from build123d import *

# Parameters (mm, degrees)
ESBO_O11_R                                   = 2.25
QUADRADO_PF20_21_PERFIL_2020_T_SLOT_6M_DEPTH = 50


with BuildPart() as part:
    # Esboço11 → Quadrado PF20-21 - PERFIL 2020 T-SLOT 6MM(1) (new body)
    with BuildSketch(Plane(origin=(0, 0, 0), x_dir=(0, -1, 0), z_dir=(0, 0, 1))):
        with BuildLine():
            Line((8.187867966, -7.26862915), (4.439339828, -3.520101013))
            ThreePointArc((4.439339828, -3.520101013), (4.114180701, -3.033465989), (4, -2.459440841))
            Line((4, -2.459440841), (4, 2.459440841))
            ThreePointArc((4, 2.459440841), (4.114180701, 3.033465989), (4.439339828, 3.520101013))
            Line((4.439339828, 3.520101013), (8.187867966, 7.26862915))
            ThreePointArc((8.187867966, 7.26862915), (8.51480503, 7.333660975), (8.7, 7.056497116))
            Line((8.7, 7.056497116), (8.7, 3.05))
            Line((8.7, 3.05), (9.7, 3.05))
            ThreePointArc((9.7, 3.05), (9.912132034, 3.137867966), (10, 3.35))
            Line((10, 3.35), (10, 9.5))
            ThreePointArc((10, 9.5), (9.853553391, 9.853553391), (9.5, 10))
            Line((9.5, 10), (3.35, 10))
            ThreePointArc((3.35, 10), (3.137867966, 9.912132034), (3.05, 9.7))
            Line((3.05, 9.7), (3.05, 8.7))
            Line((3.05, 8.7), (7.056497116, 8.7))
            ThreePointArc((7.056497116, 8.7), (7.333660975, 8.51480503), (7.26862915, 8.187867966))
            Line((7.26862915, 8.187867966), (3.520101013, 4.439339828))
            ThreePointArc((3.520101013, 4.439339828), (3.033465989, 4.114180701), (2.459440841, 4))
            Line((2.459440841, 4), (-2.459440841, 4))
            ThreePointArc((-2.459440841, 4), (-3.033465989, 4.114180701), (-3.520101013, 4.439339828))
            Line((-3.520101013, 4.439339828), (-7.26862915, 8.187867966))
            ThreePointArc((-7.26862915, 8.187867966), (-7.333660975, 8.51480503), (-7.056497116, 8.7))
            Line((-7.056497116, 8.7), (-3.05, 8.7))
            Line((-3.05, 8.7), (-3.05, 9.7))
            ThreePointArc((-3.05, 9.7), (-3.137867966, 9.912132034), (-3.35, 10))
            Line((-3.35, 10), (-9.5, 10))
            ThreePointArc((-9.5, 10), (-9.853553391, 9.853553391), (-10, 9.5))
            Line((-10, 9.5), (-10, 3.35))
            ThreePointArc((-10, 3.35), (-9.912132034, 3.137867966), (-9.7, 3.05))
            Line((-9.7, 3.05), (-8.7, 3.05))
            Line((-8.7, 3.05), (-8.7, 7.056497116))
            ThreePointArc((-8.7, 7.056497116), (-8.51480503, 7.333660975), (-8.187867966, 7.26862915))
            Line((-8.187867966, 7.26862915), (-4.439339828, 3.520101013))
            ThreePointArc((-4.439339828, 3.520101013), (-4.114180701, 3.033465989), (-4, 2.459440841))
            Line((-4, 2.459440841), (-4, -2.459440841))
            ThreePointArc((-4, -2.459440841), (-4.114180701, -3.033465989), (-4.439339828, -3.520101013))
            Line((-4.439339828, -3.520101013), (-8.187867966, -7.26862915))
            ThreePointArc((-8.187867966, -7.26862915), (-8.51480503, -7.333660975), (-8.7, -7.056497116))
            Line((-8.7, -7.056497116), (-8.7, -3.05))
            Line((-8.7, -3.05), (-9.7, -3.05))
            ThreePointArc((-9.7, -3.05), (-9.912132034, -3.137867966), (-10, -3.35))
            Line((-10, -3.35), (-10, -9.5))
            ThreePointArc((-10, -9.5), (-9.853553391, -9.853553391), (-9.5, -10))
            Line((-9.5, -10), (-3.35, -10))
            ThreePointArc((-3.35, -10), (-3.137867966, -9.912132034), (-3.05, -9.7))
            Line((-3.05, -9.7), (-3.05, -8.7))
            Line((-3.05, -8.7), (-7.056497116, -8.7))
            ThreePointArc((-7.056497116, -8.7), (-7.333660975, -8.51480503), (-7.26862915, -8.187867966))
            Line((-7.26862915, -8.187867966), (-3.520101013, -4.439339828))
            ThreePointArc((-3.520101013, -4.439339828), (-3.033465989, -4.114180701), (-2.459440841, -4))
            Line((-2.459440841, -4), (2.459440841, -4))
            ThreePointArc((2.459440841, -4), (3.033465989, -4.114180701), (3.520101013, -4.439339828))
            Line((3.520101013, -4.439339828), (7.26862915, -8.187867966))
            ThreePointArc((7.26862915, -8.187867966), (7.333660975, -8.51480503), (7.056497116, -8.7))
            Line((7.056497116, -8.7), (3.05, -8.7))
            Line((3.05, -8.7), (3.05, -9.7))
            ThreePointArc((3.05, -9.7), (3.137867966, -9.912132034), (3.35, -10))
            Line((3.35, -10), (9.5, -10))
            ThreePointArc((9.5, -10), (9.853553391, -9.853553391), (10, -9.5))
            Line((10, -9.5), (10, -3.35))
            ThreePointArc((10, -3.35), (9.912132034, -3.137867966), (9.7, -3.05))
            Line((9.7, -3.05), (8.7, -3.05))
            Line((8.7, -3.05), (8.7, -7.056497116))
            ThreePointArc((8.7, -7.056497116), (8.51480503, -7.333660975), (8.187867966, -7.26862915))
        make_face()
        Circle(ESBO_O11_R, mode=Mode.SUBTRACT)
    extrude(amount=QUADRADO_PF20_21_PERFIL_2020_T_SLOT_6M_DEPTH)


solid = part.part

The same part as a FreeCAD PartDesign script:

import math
import FreeCAD as App
import Part
import Sketcher

V = App.Vector

doc = App.newDocument("Part")
body = doc.addObject("PartDesign::Body", "Body")

# Sketch on XY plane
sketch1 = body.newObject("Sketcher::SketchObject", "Sketch")
sketch1.AttachmentSupport = (doc.getObject("XY_Plane"), [""])
sketch1.MapMode = "FlatFace"
sketch1.addGeometry(Part.LineSegment(V(-7.27, -8.19, 0), V(-3.52, -4.44, 0)), False)
sketch1.addGeometry(Part.ArcOfCircle(Part.Circle(V(-2.46, -5.5, 0), V(0, 0, 1), 1.5), math.radians(90), math.radians(135)), False)
sketch1.addGeometry(Part.LineSegment(V(-2.46, -4, 0), V(2.46, -4, 0)), False)
sketch1.addGeometry(Part.ArcOfCircle(Part.Circle(V(2.46, -5.5, 0), V(0, 0, 1), 1.5), math.radians(45), math.radians(90)), False)
sketch1.addGeometry(Part.LineSegment(V(3.52, -4.44, 0), V(7.27, -8.19, 0)), False)
sketch1.addGeometry(Part.ArcOfCircle(Part.Circle(V(7.06, -8.4, 0), V(0, 0, 1), 0.3), math.radians(-90), math.radians(45)), False)
sketch1.addGeometry(Part.LineSegment(V(7.06, -8.7, 0), V(3.05, -8.7, 0)), False)
sketch1.addGeometry(Part.LineSegment(V(3.05, -8.7, 0), V(3.05, -9.7, 0)), False)
sketch1.addGeometry(Part.ArcOfCircle(Part.Circle(V(3.35, -9.7, 0), V(0, 0, 1), 0.3), math.radians(-180), math.radians(-90)), False)
sketch1.addGeometry(Part.LineSegment(V(3.35, -10, 0), V(9.5, -10, 0)), False)
sketch1.addGeometry(Part.ArcOfCircle(Part.Circle(V(9.5, -9.5, 0), V(0, 0, 1), 0.5), math.radians(-90), math.radians(0)), False)
sketch1.addGeometry(Part.LineSegment(V(10, -9.5, 0), V(10, -3.35, 0)), False)
sketch1.addGeometry(Part.ArcOfCircle(Part.Circle(V(9.7, -3.35, 0), V(0, 0, 1), 0.3), math.radians(0), math.radians(90)), False)
sketch1.addGeometry(Part.LineSegment(V(9.7, -3.05, 0), V(8.7, -3.05, 0)), False)
sketch1.addGeometry(Part.LineSegment(V(8.7, -3.05, 0), V(8.7, -7.06, 0)), False)
sketch1.addGeometry(Part.ArcOfCircle(Part.Circle(V(8.4, -7.06, 0), V(0, 0, 1), 0.3), math.radians(-135), math.radians(0)), False)
sketch1.addGeometry(Part.LineSegment(V(8.19, -7.27, 0), V(4.44, -3.52, 0)), False)
sketch1.addGeometry(Part.ArcOfCircle(Part.Circle(V(5.5, -2.46, 0), V(0, 0, 1), 1.5), math.radians(180), math.radians(225)), False)
sketch1.addGeometry(Part.LineSegment(V(4, -2.46, 0), V(4, 2.46, 0)), False)
sketch1.addGeometry(Part.ArcOfCircle(Part.Circle(V(5.5, 2.46, 0), V(0, 0, 1), 1.5), math.radians(135), math.radians(180)), False)
sketch1.addGeometry(Part.LineSegment(V(4.44, 3.52, 0), V(8.19, 7.27, 0)), False)
sketch1.addGeometry(Part.ArcOfCircle(Part.Circle(V(8.4, 7.06, 0), V(0, 0, 1), 0.3), math.radians(0), math.radians(135)), False)
sketch1.addGeometry(Part.LineSegment(V(8.7, 7.06, 0), V(8.7, 3.05, 0)), False)
sketch1.addGeometry(Part.LineSegment(V(8.7, 3.05, 0), V(9.7, 3.05, 0)), False)
sketch1.addGeometry(Part.ArcOfCircle(Part.Circle(V(9.7, 3.35, 0), V(0, 0, 1), 0.3), math.radians(-90), math.radians(0)), False)
sketch1.addGeometry(Part.LineSegment(V(10, 3.35, 0), V(10, 9.5, 0)), False)
sketch1.addGeometry(Part.ArcOfCircle(Part.Circle(V(9.5, 9.5, 0), V(0, 0, 1), 0.5), math.radians(0), math.radians(90)), False)
sketch1.addGeometry(Part.LineSegment(V(9.5, 10, 0), V(3.35, 10, 0)), False)
sketch1.addGeometry(Part.ArcOfCircle(Part.Circle(V(3.35, 9.7, 0), V(0, 0, 1), 0.3), math.radians(90), math.radians(180)), False)
sketch1.addGeometry(Part.LineSegment(V(3.05, 9.7, 0), V(3.05, 8.7, 0)), False)
sketch1.addGeometry(Part.LineSegment(V(3.05, 8.7, 0), V(7.06, 8.7, 0)), False)
sketch1.addGeometry(Part.ArcOfCircle(Part.Circle(V(7.06, 8.4, 0), V(0, 0, 1), 0.3), math.radians(-45), math.radians(90)), False)
sketch1.addGeometry(Part.LineSegment(V(7.27, 8.19, 0), V(3.52, 4.44, 0)), False)
sketch1.addGeometry(Part.ArcOfCircle(Part.Circle(V(2.46, 5.5, 0), V(0, 0, 1), 1.5), math.radians(-90), math.radians(-45)), False)
sketch1.addGeometry(Part.LineSegment(V(2.46, 4, 0), V(-2.46, 4, 0)), False)
sketch1.addGeometry(Part.ArcOfCircle(Part.Circle(V(-2.46, 5.5, 0), V(0, 0, 1), 1.5), math.radians(-135), math.radians(-90)), False)
sketch1.addGeometry(Part.LineSegment(V(-3.52, 4.44, 0), V(-7.27, 8.19, 0)), False)
sketch1.addGeometry(Part.ArcOfCircle(Part.Circle(V(-7.06, 8.4, 0), V(0, 0, 1), 0.3), math.radians(90), math.radians(225)), False)
sketch1.addGeometry(Part.LineSegment(V(-7.06, 8.7, 0), V(-3.05, 8.7, 0)), False)
sketch1.addGeometry(Part.LineSegment(V(-3.05, 8.7, 0), V(-3.05, 9.7, 0)), False)
sketch1.addGeometry(Part.ArcOfCircle(Part.Circle(V(-3.35, 9.7, 0), V(0, 0, 1), 0.3), math.radians(0), math.radians(90)), False)
sketch1.addGeometry(Part.LineSegment(V(-3.35, 10, 0), V(-9.5, 10, 0)), False)
sketch1.addGeometry(Part.ArcOfCircle(Part.Circle(V(-9.5, 9.5, 0), V(0, 0, 1), 0.5), math.radians(90), math.radians(180)), False)
sketch1.addGeometry(Part.LineSegment(V(-10, 9.5, 0), V(-10, 3.35, 0)), False)
sketch1.addGeometry(Part.ArcOfCircle(Part.Circle(V(-9.7, 3.35, 0), V(0, 0, 1), 0.3), math.radians(-180), math.radians(-90)), False)
sketch1.addGeometry(Part.LineSegment(V(-9.7, 3.05, 0), V(-8.7, 3.05, 0)), False)
sketch1.addGeometry(Part.LineSegment(V(-8.7, 3.05, 0), V(-8.7, 7.06, 0)), False)
sketch1.addGeometry(Part.ArcOfCircle(Part.Circle(V(-8.4, 7.06, 0), V(0, 0, 1), 0.3), math.radians(45), math.radians(180)), False)
sketch1.addGeometry(Part.LineSegment(V(-8.19, 7.27, 0), V(-4.44, 3.52, 0)), False)
sketch1.addGeometry(Part.ArcOfCircle(Part.Circle(V(-5.5, 2.46, 0), V(0, 0, 1), 1.5), math.radians(0), math.radians(45)), False)
sketch1.addGeometry(Part.LineSegment(V(-4, 2.46, 0), V(-4, -2.46, 0)), False)
sketch1.addGeometry(Part.ArcOfCircle(Part.Circle(V(-5.5, -2.46, 0), V(0, 0, 1), 1.5), math.radians(-45), math.radians(0)), False)
sketch1.addGeometry(Part.LineSegment(V(-4.44, -3.52, 0), V(-8.19, -7.27, 0)), False)
sketch1.addGeometry(Part.ArcOfCircle(Part.Circle(V(-8.4, -7.06, 0), V(0, 0, 1), 0.3), math.radians(-180), math.radians(-45)), False)
sketch1.addGeometry(Part.LineSegment(V(-8.7, -7.06, 0), V(-8.7, -3.05, 0)), False)
sketch1.addGeometry(Part.LineSegment(V(-8.7, -3.05, 0), V(-9.7, -3.05, 0)), False)
sketch1.addGeometry(Part.ArcOfCircle(Part.Circle(V(-9.7, -3.35, 0), V(0, 0, 1), 0.3), math.radians(90), math.radians(180)), False)
sketch1.addGeometry(Part.LineSegment(V(-10, -3.35, 0), V(-10, -9.5, 0)), False)
sketch1.addGeometry(Part.ArcOfCircle(Part.Circle(V(-9.5, -9.5, 0), V(0, 0, 1), 0.5), math.radians(180), math.radians(270)), False)
sketch1.addGeometry(Part.LineSegment(V(-9.5, -10, 0), V(-3.35, -10, 0)), False)
sketch1.addGeometry(Part.ArcOfCircle(Part.Circle(V(-3.35, -9.7, 0), V(0, 0, 1), 0.3), math.radians(-90), math.radians(0)), False)
sketch1.addGeometry(Part.LineSegment(V(-3.05, -9.7, 0), V(-3.05, -8.7, 0)), False)
sketch1.addGeometry(Part.LineSegment(V(-3.05, -8.7, 0), V(-7.06, -8.7, 0)), False)
sketch1.addGeometry(Part.ArcOfCircle(Part.Circle(V(-7.06, -8.4, 0), V(0, 0, 1), 0.3), math.radians(135), math.radians(270)), False)
sketch1.addGeometry(Part.Circle(V(0, 0, 0), V(0, 0, 1), 2.25), False)
sketch1.addConstraint(Sketcher.Constraint("Tangent", 0, 2, 1, 2))
sketch1.addConstraint(Sketcher.Constraint("Tangent", 1, 1, 2, 1))
sketch1.addConstraint(Sketcher.Constraint("Tangent", 2, 2, 3, 2))
sketch1.addConstraint(Sketcher.Constraint("Tangent", 3, 1, 4, 1))
sketch1.addConstraint(Sketcher.Constraint("Tangent", 4, 2, 5, 2))
sketch1.addConstraint(Sketcher.Constraint("Tangent", 5, 1, 6, 1))
sketch1.addConstraint(Sketcher.Constraint("Coincident", 6, 2, 7, 1))
sketch1.addConstraint(Sketcher.Constraint("Tangent", 7, 2, 8, 1))
sketch1.addConstraint(Sketcher.Constraint("Tangent", 8, 2, 9, 1))
sketch1.addConstraint(Sketcher.Constraint("Tangent", 9, 2, 10, 1))
sketch1.addConstraint(Sketcher.Constraint("Tangent", 10, 2, 11, 1))
sketch1.addConstraint(Sketcher.Constraint("Tangent", 11, 2, 12, 1))
sketch1.addConstraint(Sketcher.Constraint("Tangent", 12, 2, 13, 1))
sketch1.addConstraint(Sketcher.Constraint("Coincident", 13, 2, 14, 1))
sketch1.addConstraint(Sketcher.Constraint("Tangent", 14, 2, 15, 2))
sketch1.addConstraint(Sketcher.Constraint("Tangent", 15, 1, 16, 1))
sketch1.addConstraint(Sketcher.Constraint("Tangent", 16, 2, 17, 2))
sketch1.addConstraint(Sketcher.Constraint("Tangent", 17, 1, 18, 1))
sketch1.addConstraint(Sketcher.Constraint("Tangent", 18, 2, 19, 2))
sketch1.addConstraint(Sketcher.Constraint("Tangent", 19, 1, 20, 1))
sketch1.addConstraint(Sketcher.Constraint("Tangent", 20, 2, 21, 2))
sketch1.addConstraint(Sketcher.Constraint("Tangent", 21, 1, 22, 1))
sketch1.addConstraint(Sketcher.Constraint("Coincident", 22, 2, 23, 1))
sketch1.addConstraint(Sketcher.Constraint("Tangent", 23, 2, 24, 1))
sketch1.addConstraint(Sketcher.Constraint("Tangent", 24, 2, 25, 1))
sketch1.addConstraint(Sketcher.Constraint("Tangent", 25, 2, 26, 1))
sketch1.addConstraint(Sketcher.Constraint("Tangent", 26, 2, 27, 1))
sketch1.addConstraint(Sketcher.Constraint("Tangent", 27, 2, 28, 1))
sketch1.addConstraint(Sketcher.Constraint("Tangent", 28, 2, 29, 1))
sketch1.addConstraint(Sketcher.Constraint("Coincident", 29, 2, 30, 1))
sketch1.addConstraint(Sketcher.Constraint("Tangent", 30, 2, 31, 2))
sketch1.addConstraint(Sketcher.Constraint("Tangent", 31, 1, 32, 1))
sketch1.addConstraint(Sketcher.Constraint("Tangent", 32, 2, 33, 2))
sketch1.addConstraint(Sketcher.Constraint("Tangent", 33, 1, 34, 1))
sketch1.addConstraint(Sketcher.Constraint("Tangent", 34, 2, 35, 2))
sketch1.addConstraint(Sketcher.Constraint("Tangent", 35, 1, 36, 1))
sketch1.addConstraint(Sketcher.Constraint("Tangent", 36, 2, 37, 2))
sketch1.addConstraint(Sketcher.Constraint("Tangent", 37, 1, 38, 1))
sketch1.addConstraint(Sketcher.Constraint("Coincident", 38, 2, 39, 1))
sketch1.addConstraint(Sketcher.Constraint("Tangent", 39, 2, 40, 1))
sketch1.addConstraint(Sketcher.Constraint("Tangent", 40, 2, 41, 1))
sketch1.addConstraint(Sketcher.Constraint("Tangent", 41, 2, 42, 1))
sketch1.addConstraint(Sketcher.Constraint("Tangent", 42, 2, 43, 1))
sketch1.addConstraint(Sketcher.Constraint("Tangent", 43, 2, 44, 1))
sketch1.addConstraint(Sketcher.Constraint("Tangent", 44, 2, 45, 1))
sketch1.addConstraint(Sketcher.Constraint("Coincident", 45, 2, 46, 1))
sketch1.addConstraint(Sketcher.Constraint("Tangent", 46, 2, 47, 2))
sketch1.addConstraint(Sketcher.Constraint("Tangent", 47, 1, 48, 1))
sketch1.addConstraint(Sketcher.Constraint("Tangent", 48, 2, 49, 2))
sketch1.addConstraint(Sketcher.Constraint("Tangent", 49, 1, 50, 1))
sketch1.addConstraint(Sketcher.Constraint("Tangent", 50, 2, 51, 2))
sketch1.addConstraint(Sketcher.Constraint("Tangent", 51, 1, 52, 1))
sketch1.addConstraint(Sketcher.Constraint("Tangent", 52, 2, 53, 2))
sketch1.addConstraint(Sketcher.Constraint("Tangent", 53, 1, 54, 1))
sketch1.addConstraint(Sketcher.Constraint("Coincident", 54, 2, 55, 1))
sketch1.addConstraint(Sketcher.Constraint("Tangent", 55, 2, 56, 1))
sketch1.addConstraint(Sketcher.Constraint("Tangent", 56, 2, 57, 1))
sketch1.addConstraint(Sketcher.Constraint("Tangent", 57, 2, 58, 1))
sketch1.addConstraint(Sketcher.Constraint("Tangent", 58, 2, 59, 1))
sketch1.addConstraint(Sketcher.Constraint("Tangent", 59, 2, 60, 1))
sketch1.addConstraint(Sketcher.Constraint("Tangent", 60, 2, 61, 1))
sketch1.addConstraint(Sketcher.Constraint("Coincident", 61, 2, 62, 1))
sketch1.addConstraint(Sketcher.Constraint("Tangent", 62, 2, 63, 2))
sketch1.addConstraint(Sketcher.Constraint("Tangent", 63, 1, 0, 1))
sketch1.addConstraint(Sketcher.Constraint("Horizontal", 2))
sketch1.addConstraint(Sketcher.Constraint("Horizontal", 6))
sketch1.addConstraint(Sketcher.Constraint("Vertical", 7))
sketch1.addConstraint(Sketcher.Constraint("Horizontal", 9))
sketch1.addConstraint(Sketcher.Constraint("Vertical", 11))
sketch1.addConstraint(Sketcher.Constraint("Horizontal", 13))
sketch1.addConstraint(Sketcher.Constraint("Vertical", 14))
sketch1.addConstraint(Sketcher.Constraint("Vertical", 18))
sketch1.addConstraint(Sketcher.Constraint("Vertical", 22))
sketch1.addConstraint(Sketcher.Constraint("Horizontal", 23))
sketch1.addConstraint(Sketcher.Constraint("Vertical", 25))
sketch1.addConstraint(Sketcher.Constraint("Horizontal", 27))
sketch1.addConstraint(Sketcher.Constraint("Vertical", 29))
sketch1.addConstraint(Sketcher.Constraint("Horizontal", 30))
sketch1.addConstraint(Sketcher.Constraint("Horizontal", 34))
sketch1.addConstraint(Sketcher.Constraint("Horizontal", 38))
sketch1.addConstraint(Sketcher.Constraint("Vertical", 39))
sketch1.addConstraint(Sketcher.Constraint("Horizontal", 41))
sketch1.addConstraint(Sketcher.Constraint("Vertical", 43))
sketch1.addConstraint(Sketcher.Constraint("Horizontal", 45))
sketch1.addConstraint(Sketcher.Constraint("Vertical", 46))
sketch1.addConstraint(Sketcher.Constraint("Vertical", 50))
sketch1.addConstraint(Sketcher.Constraint("Vertical", 54))
sketch1.addConstraint(Sketcher.Constraint("Horizontal", 55))
sketch1.addConstraint(Sketcher.Constraint("Vertical", 57))
sketch1.addConstraint(Sketcher.Constraint("Horizontal", 59))
sketch1.addConstraint(Sketcher.Constraint("Vertical", 61))
sketch1.addConstraint(Sketcher.Constraint("Horizontal", 62))
sketch1.addConstraint(Sketcher.Constraint("Coincident", 64, 3, -1, 1))
sketch1.addConstraint(Sketcher.Constraint("Equal", 1, 3))
sketch1.addConstraint(Sketcher.Constraint("Equal", 5, 8))
sketch1.addConstraint(Sketcher.Constraint("Equal", 8, 12))
sketch1.addConstraint(Sketcher.Constraint("Equal", 12, 15))
sketch1.addConstraint(Sketcher.Constraint("Equal", 3, 17))
sketch1.addConstraint(Sketcher.Constraint("Equal", 17, 19))
sketch1.addConstraint(Sketcher.Constraint("Equal", 15, 21))
sketch1.addConstraint(Sketcher.Constraint("Equal", 21, 24))
sketch1.addConstraint(Sketcher.Constraint("Equal", 10, 26))
sketch1.addConstraint(Sketcher.Constraint("Equal", 24, 28))
sketch1.addConstraint(Sketcher.Constraint("Equal", 28, 31))
sketch1.addConstraint(Sketcher.Constraint("Equal", 19, 33))
sketch1.addConstraint(Sketcher.Constraint("Equal", 33, 35))
sketch1.addConstraint(Sketcher.Constraint("Equal", 31, 37))
sketch1.addConstraint(Sketcher.Constraint("Equal", 37, 40))
sketch1.addConstraint(Sketcher.Constraint("Equal", 26, 42))
sketch1.addConstraint(Sketcher.Constraint("Equal", 40, 44))
sketch1.addConstraint(Sketcher.Constraint("Equal", 44, 47))
sketch1.addConstraint(Sketcher.Constraint("Equal", 35, 49))
sketch1.addConstraint(Sketcher.Constraint("Equal", 49, 51))
sketch1.addConstraint(Sketcher.Constraint("Equal", 47, 53))
sketch1.addConstraint(Sketcher.Constraint("Equal", 53, 56))
sketch1.addConstraint(Sketcher.Constraint("Equal", 42, 58))
sketch1.addConstraint(Sketcher.Constraint("Equal", 56, 60))
sketch1.addConstraint(Sketcher.Constraint("Equal", 60, 63))
sketch1.addConstraint(Sketcher.Constraint("Symmetric", 1, 3, 33, 3, -1, 1))
sketch1.addConstraint(Sketcher.Constraint("Symmetric", 5, 3, 37, 3, -1, 1))
sketch1.addConstraint(Sketcher.Constraint("Symmetric", 8, 3, 40, 3, -1, 1))
sketch1.addConstraint(Sketcher.Constraint("Symmetric", 12, 3, 44, 3, -1, 1))
sketch1.addConstraint(Sketcher.Constraint("Symmetric", 15, 3, 47, 3, -1, 1))
sketch1.addConstraint(Sketcher.Constraint("Symmetric", 17, 3, 49, 3, -1, 1))
sketch1.addConstraint(Sketcher.Constraint("Symmetric", 21, 3, 53, 3, -1, 1))
sketch1.addConstraint(Sketcher.Constraint("Symmetric", 24, 3, 56, 3, -1, 1))
sketch1.addConstraint(Sketcher.Constraint("Symmetric", 28, 3, 60, 3, -1, 1))
sketch1.addConstraint(Sketcher.Constraint("Symmetric", 31, 3, 63, 3, -1, 1))
sketch1.addConstraint(Sketcher.Constraint("Symmetric", 31, 3, 37, 3, -2))
sketch1.addConstraint(Sketcher.Constraint("Symmetric", 28, 3, 40, 3, -2))
sketch1.addConstraint(Sketcher.Constraint("Symmetric", 24, 3, 44, 3, -2))
sketch1.addConstraint(Sketcher.Constraint("Symmetric", 21, 3, 47, 3, -2))
sketch1.addConstraint(Sketcher.Constraint("Perpendicular", 0, 4))
sketch1.addConstraint(Sketcher.Constraint("Parallel", 4, 16))
sketch1.addConstraint(Sketcher.Constraint("Perpendicular", 16, 20))
sketch1.addConstraint(Sketcher.Constraint("Perpendicular", 32, 36))
sketch1.addConstraint(Sketcher.Constraint("Perpendicular", 48, 52))
sketch1.addConstraint(Sketcher.Constraint("Horizontal", 19, 3, 49, 3))
sketch1.addConstraint(Sketcher.Constraint("Equal", 55, 7))
sketch1.addConstraint(Sketcher.Constraint("Equal", 59, 11))
sketch1.addConstraint(Sketcher.Constraint("Equal", 62, 14))
sketch1.addConstraint(Sketcher.Constraint("Equal", 34, 18))
sketch1.addConstraint(Sketcher.Constraint("Equal", 4, 16))
sketch1.addConstraint(Sketcher.Constraint("Diameter", 64, 4.5))
sketch1.addConstraint(Sketcher.Constraint("Radius", 1, 1.5))
sketch1.addConstraint(Sketcher.Constraint("Radius", 5, 0.3))
sketch1.addConstraint(Sketcher.Constraint("Radius", 10, 0.5))
sketch1.addConstraint(Sketcher.Constraint("DistanceX", 13, 2, 13, 1, 1.0))
sketch1.addConstraint(Sketcher.Constraint("DistanceY", 1, 1, -1, 1, 4.0))
sketch1.addConstraint(Sketcher.Constraint("DistanceY", 8, 2, -1, 1, 10.0))
sketch1.addConstraint(Sketcher.Constraint("DistanceX", 9, 1, 9, 2, 6.15))
sketch1.addConstraint(Sketcher.Constraint("DistanceX", 2, 1, 2, 2, 4.918882))
pad1 = body.newObject("PartDesign::Pad", "Pad")
pad1.Profile = sketch1
pad1.Length = 50

doc.recompute()
